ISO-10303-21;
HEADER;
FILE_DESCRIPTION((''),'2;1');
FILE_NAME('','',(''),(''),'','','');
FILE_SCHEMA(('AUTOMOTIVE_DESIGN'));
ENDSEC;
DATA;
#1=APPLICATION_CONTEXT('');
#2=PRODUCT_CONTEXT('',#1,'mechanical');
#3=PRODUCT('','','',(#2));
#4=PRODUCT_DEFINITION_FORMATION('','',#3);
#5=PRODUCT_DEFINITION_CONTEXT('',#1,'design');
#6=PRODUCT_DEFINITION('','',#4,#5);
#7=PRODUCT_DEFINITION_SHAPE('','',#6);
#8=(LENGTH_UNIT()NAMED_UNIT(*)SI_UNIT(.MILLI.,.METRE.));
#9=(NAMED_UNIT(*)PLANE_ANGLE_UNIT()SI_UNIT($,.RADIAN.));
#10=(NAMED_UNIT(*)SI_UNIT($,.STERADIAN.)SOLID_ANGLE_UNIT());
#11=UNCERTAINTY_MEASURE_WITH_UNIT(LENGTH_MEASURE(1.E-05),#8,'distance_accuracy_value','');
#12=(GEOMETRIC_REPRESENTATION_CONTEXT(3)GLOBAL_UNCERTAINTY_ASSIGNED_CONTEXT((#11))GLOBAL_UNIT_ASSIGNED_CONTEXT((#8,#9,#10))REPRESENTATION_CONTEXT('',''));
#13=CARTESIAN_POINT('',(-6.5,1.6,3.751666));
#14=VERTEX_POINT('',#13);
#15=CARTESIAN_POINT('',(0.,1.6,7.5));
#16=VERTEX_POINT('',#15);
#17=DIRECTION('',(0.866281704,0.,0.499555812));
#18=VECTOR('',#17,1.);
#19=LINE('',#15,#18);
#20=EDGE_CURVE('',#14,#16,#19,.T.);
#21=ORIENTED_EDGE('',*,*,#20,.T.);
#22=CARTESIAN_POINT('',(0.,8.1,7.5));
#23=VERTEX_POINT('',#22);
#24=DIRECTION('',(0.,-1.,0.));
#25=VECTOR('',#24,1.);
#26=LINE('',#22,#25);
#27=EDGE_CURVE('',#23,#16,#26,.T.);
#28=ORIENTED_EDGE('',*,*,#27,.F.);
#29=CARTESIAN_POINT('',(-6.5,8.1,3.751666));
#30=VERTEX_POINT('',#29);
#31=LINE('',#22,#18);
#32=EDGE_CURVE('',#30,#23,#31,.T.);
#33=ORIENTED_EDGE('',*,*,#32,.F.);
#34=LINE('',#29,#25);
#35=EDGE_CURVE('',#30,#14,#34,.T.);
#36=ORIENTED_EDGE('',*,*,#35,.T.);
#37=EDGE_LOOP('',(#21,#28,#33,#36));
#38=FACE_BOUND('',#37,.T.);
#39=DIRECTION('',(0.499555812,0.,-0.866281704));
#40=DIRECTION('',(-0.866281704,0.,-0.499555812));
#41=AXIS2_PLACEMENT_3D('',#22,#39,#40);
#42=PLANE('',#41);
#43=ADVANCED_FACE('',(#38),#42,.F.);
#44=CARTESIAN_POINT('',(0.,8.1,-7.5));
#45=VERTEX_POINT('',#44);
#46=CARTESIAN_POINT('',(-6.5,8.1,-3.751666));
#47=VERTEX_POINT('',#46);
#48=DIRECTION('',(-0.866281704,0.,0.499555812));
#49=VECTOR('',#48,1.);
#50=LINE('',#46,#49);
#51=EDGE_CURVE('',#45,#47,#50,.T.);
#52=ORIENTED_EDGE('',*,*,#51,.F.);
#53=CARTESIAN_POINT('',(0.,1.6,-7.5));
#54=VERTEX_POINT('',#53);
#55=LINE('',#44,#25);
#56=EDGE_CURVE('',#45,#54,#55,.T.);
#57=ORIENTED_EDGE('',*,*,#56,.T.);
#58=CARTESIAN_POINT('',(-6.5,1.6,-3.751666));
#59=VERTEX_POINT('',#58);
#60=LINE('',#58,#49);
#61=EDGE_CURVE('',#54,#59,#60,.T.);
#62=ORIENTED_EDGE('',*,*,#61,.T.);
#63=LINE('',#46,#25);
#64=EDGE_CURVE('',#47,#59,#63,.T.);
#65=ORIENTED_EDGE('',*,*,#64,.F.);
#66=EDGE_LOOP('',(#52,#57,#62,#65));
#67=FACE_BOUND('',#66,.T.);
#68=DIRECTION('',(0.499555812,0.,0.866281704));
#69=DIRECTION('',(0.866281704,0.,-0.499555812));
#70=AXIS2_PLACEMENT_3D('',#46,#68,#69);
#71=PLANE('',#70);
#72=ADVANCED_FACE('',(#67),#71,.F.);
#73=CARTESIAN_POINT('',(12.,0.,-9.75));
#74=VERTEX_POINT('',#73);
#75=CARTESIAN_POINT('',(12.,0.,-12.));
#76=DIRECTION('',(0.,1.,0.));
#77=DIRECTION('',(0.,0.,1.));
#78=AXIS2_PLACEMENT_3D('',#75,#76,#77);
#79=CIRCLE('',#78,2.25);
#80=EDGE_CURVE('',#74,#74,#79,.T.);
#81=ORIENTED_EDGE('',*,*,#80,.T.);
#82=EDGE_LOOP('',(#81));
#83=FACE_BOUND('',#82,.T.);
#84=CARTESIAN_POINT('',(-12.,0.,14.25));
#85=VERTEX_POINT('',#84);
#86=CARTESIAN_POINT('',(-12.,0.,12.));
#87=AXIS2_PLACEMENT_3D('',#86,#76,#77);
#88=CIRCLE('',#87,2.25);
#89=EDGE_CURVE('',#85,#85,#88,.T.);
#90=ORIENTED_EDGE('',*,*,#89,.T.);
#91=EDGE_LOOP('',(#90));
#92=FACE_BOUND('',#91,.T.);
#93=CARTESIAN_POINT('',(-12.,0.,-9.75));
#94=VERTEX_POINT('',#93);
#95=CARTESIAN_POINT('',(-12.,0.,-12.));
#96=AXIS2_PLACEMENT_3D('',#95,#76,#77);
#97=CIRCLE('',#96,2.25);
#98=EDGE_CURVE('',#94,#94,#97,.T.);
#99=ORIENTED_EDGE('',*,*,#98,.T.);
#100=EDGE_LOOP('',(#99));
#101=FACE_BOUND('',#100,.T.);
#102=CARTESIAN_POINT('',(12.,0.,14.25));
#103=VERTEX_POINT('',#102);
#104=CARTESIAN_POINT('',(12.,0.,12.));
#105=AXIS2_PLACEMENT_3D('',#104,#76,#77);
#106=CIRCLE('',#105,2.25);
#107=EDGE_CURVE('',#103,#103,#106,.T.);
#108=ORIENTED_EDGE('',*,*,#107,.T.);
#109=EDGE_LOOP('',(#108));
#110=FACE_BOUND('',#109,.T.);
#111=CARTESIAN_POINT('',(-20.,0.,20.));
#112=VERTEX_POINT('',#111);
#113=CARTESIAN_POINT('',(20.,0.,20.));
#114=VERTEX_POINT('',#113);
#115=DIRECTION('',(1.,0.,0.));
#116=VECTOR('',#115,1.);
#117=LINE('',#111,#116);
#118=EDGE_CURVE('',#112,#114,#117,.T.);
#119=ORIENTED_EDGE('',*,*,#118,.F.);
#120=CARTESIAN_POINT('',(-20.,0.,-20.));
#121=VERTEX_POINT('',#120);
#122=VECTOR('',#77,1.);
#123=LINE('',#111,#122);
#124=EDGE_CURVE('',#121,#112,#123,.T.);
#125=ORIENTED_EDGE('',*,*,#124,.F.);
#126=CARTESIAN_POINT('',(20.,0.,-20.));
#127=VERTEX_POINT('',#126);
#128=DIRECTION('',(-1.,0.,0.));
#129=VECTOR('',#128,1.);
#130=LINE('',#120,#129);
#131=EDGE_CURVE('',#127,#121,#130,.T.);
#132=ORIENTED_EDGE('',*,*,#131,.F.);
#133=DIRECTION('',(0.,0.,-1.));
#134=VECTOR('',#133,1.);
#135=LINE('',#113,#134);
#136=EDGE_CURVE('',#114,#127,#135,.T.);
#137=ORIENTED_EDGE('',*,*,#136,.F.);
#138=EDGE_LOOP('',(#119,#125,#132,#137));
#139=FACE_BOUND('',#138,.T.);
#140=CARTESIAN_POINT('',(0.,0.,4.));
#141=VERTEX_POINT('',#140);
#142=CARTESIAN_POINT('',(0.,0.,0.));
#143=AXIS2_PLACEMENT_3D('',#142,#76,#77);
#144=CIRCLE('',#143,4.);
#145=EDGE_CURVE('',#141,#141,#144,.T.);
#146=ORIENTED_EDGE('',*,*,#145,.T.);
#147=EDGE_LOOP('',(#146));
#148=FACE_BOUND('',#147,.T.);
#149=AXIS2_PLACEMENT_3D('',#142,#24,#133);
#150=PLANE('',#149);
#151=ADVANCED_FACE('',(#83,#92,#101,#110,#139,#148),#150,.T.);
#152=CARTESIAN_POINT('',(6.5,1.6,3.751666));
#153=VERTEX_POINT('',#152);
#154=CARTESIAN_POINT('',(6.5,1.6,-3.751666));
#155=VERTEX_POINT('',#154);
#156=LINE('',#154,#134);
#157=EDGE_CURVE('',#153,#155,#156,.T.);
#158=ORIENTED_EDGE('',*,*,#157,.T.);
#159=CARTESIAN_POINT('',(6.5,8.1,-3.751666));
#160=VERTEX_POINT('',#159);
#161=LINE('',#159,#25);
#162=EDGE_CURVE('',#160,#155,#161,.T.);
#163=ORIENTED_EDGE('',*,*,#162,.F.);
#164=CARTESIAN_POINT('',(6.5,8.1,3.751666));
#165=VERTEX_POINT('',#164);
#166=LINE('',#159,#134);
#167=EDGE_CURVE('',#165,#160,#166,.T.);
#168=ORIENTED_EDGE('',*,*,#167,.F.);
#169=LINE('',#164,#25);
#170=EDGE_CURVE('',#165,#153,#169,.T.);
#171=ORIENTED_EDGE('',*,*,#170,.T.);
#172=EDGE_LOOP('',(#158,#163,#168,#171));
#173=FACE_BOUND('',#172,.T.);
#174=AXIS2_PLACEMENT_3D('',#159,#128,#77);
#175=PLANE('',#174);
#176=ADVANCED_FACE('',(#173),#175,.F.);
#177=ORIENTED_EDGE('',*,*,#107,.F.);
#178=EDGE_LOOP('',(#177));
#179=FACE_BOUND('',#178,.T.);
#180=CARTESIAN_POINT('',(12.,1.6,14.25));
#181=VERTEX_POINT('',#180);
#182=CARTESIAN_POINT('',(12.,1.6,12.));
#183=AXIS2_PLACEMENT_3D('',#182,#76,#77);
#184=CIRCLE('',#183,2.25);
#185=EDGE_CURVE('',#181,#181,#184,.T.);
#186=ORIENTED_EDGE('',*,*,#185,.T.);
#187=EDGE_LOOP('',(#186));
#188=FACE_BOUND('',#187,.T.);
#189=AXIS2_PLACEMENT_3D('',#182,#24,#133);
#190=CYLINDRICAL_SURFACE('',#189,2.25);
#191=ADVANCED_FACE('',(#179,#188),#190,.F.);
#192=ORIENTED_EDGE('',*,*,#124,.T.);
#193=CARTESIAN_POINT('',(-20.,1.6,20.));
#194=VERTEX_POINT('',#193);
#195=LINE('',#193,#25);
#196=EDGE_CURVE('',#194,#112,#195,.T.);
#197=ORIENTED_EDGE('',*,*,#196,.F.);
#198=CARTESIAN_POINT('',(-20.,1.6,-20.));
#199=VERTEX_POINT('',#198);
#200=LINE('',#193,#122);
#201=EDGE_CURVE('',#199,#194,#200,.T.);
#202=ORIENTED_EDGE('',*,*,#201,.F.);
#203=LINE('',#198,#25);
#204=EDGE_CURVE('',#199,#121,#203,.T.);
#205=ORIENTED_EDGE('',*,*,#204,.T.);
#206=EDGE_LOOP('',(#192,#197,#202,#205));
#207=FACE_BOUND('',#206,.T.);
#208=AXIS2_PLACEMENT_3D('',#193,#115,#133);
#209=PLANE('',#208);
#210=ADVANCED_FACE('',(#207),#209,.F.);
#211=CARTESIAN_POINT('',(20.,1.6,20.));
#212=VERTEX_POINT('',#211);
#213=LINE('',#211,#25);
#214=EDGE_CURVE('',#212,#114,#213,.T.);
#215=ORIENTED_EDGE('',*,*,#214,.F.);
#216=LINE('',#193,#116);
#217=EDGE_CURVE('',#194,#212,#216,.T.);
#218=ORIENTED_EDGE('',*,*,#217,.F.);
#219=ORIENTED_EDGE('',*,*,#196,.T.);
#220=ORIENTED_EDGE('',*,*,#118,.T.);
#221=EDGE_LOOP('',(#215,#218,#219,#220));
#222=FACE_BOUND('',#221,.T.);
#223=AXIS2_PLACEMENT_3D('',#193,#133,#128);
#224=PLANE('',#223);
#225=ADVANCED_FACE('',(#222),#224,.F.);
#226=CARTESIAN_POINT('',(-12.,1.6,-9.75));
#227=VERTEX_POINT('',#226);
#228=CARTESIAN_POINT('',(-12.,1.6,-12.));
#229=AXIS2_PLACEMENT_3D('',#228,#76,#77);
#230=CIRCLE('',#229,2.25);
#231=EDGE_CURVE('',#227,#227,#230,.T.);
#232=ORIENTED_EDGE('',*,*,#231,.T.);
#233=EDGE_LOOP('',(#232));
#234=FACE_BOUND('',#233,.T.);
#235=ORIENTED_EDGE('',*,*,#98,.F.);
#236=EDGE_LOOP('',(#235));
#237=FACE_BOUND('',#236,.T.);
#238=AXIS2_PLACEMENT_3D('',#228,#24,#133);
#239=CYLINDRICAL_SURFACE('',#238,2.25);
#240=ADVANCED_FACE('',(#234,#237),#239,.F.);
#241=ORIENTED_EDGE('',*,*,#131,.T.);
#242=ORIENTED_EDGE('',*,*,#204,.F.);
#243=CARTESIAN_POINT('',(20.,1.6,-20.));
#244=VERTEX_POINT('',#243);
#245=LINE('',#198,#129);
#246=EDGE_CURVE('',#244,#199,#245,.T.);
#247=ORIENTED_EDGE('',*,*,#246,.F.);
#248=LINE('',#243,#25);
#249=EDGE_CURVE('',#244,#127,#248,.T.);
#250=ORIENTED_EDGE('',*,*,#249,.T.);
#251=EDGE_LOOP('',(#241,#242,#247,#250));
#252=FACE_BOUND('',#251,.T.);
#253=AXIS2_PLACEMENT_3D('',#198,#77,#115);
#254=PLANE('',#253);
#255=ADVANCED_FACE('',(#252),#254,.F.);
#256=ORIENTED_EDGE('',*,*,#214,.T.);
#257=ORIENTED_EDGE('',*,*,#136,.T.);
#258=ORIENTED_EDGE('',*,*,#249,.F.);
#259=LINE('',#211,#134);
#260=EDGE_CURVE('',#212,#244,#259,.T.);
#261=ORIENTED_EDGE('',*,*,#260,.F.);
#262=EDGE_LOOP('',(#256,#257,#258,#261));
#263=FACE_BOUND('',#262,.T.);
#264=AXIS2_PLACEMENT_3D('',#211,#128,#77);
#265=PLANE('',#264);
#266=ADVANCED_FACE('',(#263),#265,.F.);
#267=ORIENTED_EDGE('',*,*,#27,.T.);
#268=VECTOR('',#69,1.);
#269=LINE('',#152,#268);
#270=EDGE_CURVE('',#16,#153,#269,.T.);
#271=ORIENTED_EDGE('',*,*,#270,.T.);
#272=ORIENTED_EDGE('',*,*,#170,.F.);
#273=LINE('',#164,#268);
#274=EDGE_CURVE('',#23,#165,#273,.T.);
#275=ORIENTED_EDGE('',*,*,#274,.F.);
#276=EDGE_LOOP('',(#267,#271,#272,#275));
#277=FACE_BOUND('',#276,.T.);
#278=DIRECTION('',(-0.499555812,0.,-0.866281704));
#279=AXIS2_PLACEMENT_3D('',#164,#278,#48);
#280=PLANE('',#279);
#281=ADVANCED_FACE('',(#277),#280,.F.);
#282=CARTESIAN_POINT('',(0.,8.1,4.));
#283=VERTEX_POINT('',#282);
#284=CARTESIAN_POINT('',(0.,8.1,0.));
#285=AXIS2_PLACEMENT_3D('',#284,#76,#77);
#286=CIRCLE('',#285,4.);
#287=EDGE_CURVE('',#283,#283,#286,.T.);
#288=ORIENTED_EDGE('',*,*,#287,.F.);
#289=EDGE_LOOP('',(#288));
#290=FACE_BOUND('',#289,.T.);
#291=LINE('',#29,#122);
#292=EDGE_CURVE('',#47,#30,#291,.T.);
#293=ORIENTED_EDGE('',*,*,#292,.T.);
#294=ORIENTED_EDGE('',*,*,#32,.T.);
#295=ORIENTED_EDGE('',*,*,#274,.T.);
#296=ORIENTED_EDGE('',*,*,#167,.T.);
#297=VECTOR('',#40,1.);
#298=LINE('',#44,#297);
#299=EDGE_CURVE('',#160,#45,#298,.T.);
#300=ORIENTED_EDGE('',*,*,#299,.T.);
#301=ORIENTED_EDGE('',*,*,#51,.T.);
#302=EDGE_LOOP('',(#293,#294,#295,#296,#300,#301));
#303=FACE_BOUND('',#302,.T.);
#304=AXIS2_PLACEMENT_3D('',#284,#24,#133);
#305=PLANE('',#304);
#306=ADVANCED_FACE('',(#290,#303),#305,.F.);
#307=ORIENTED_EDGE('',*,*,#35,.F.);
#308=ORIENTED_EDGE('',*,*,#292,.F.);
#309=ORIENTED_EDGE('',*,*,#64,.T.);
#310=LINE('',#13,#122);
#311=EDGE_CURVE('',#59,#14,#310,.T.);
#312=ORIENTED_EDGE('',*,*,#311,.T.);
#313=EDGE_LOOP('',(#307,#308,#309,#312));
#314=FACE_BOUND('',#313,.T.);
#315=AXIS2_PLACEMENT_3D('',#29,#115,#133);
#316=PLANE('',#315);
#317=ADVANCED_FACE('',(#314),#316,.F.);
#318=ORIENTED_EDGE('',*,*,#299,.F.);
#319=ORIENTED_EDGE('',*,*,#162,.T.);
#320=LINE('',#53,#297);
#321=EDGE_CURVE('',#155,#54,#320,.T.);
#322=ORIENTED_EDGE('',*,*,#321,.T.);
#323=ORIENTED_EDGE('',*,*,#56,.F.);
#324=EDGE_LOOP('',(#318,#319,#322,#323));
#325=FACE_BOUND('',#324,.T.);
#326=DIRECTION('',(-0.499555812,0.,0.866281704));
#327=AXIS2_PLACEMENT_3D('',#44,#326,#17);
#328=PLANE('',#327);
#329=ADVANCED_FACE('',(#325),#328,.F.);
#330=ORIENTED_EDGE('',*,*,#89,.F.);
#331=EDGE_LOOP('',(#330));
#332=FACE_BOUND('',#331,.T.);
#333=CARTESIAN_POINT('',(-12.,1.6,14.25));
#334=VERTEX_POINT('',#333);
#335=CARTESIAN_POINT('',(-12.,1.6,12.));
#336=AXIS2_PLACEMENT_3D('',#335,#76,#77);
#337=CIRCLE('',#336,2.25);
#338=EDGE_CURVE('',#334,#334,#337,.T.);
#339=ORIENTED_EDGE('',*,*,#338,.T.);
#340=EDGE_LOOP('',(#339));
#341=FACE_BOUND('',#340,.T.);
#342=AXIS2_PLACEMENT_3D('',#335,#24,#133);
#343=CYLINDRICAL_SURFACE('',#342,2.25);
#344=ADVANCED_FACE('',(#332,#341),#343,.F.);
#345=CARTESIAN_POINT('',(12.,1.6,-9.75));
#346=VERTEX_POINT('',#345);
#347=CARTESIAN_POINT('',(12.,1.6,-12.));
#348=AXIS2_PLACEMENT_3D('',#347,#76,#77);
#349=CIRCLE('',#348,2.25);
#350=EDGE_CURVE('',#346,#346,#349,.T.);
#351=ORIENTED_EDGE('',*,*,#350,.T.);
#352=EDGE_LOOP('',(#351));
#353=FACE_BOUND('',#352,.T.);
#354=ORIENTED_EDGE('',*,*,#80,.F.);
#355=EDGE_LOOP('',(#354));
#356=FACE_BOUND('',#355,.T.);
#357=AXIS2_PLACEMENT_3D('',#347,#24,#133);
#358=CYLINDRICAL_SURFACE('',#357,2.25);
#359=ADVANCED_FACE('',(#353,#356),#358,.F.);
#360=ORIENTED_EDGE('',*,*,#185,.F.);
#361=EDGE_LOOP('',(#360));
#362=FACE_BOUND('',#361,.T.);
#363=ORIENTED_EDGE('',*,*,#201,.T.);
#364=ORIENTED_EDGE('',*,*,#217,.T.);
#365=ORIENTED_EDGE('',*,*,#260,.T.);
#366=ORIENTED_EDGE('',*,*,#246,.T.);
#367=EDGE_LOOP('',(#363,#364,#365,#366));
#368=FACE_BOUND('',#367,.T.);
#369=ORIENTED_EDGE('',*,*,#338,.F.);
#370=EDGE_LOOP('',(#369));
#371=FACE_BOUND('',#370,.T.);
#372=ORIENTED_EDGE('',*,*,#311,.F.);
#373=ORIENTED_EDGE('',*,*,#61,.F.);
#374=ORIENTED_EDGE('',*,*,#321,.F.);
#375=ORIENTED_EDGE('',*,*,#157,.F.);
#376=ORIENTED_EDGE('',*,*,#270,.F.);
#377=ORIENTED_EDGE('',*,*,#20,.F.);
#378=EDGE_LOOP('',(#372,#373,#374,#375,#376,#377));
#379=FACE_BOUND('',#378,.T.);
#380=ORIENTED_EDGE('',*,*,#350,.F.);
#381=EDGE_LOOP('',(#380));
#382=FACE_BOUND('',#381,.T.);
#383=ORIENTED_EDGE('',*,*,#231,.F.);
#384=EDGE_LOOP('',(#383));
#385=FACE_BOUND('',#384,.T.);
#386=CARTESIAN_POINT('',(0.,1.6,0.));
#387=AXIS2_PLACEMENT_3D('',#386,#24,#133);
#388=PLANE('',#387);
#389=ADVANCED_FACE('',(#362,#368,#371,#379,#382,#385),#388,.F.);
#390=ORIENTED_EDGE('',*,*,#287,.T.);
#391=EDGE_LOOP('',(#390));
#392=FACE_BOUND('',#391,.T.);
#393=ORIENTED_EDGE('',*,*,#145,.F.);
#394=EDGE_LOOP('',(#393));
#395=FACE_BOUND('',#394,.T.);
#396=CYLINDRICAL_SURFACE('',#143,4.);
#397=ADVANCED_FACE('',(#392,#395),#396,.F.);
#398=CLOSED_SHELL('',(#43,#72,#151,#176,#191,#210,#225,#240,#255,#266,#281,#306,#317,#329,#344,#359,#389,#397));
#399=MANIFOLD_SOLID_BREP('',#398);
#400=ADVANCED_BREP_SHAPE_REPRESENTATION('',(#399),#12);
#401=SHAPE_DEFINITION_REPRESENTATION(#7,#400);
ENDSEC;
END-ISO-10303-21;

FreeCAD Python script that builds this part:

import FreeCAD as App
import Part
import Sketcher
from FreeCAD import Vector
Q = App.Units.Quantity

doc = App.newDocument("Part")
body = doc.addObject("PartDesign::Body", "Body")

# Sketch on XZ plane
sketch1 = doc.addObject("Sketcher::SketchObject", "Sketch")
body.addObject(sketch1)
sketch1.AttachmentSupport = (doc.XZ_Plane, [""])
sketch1.MapMode = "FlatFace"
sketch1.addGeometry([
    Part.LineSegment(Vector(-20, -20, 0), Vector(-20, 20, 0)),  # 0
    Part.LineSegment(Vector(-20, 20, 0), Vector(20, 20, 0)),  # 1
    Part.LineSegment(Vector(20, 20, 0), Vector(20, -20, 0)),  # 2
    Part.LineSegment(Vector(20, -20, 0), Vector(-20, -20, 0)),  # 3
    Part.Circle(Vector(-12, 12, 0), Vector(0, 0, 1), 2.2),  # 4
    Part.Circle(Vector(12, 12, 0), Vector(0, 0, 1), 2.2),  # 5
    Part.Circle(Vector(-12, -12, 0), Vector(0, 0, 1), 2.2),  # 6
    Part.Circle(Vector(12, -12, 0), Vector(0, 0, 1), 2.2),  # 7
], False)
sketch1.addConstraint([
    Sketcher.Constraint("Coincident", 0, 2, 1, 1),
    Sketcher.Constraint("Coincident", 1, 2, 2, 1),
    Sketcher.Constraint("Coincident", 2, 2, 3, 1),
    Sketcher.Constraint("Coincident", 3, 2, 0, 1),
    Sketcher.Constraint("Vertical", 0),
    Sketcher.Constraint("Horizontal", 1),
    Sketcher.Constraint("Vertical", 2),
    Sketcher.Constraint("Horizontal", 3),
    Sketcher.Constraint("Equal", 4, 5),
    Sketcher.Constraint("Equal", 5, 6),
    Sketcher.Constraint("Equal", 6, 7),
    Sketcher.Constraint("Symmetric", 5, 3, 6, 3, -1, 1),
    Sketcher.Constraint("Symmetric", 4, 3, 7, 3, -1, 1),
    Sketcher.Constraint("Symmetric", 0, 2, 2, 2, -1, 1),
    Sketcher.Constraint("Symmetric", 4, 3, 5, 3, -2),
    Sketcher.Constraint("Equal", 3, 0),
    Sketcher.Constraint("Diameter", 4, Q("4.5 mm")),
    Sketcher.Constraint("DistanceX", 1, 1, 1, 2, Q("40 mm")),
    Sketcher.Constraint("DistanceX", 4, 3, -1, 1, Q("12 mm")),
    Sketcher.Constraint("DistanceY", -1, 1, 4, 3, Q("12 mm")),
])
pad1 = doc.addObject("PartDesign::Pad", "Pad")
body.addObject(pad1)
pad1.Profile = sketch1
pad1.Length = 1.6
pad1.Reversed = True

# Sketch on XZ plane
sketch2 = doc.addObject("Sketcher::SketchObject", "Sketch001")
body.addObject(sketch2)
sketch2.AttachmentSupport = (doc.XZ_Plane, [""])
sketch2.MapMode = "FlatFace"
sketch2.AttachmentOffset = App.Placement(Vector(0, 0, -1.6), App.Rotation())
sketch2.addGeometry([
    Part.LineSegment(Vector(6, -4, 0), Vector(0, -8, 0)),  # 0
    Part.LineSegment(Vector(0, -8, 0), Vector(-6, -4, 0)),  # 1
    Part.LineSegment(Vector(-6, -4, 0), Vector(-6, 4, 0)),  # 2
    Part.LineSegment(Vector(-6, 4, 0), Vector(0, 8, 0)),  # 3
    Part.LineSegment(Vector(0, 8, 0), Vector(6, 4, 0)),  # 4
    Part.LineSegment(Vector(6, 4, 0), Vector(6, -4, 0)),  # 5
], False)
sketch2.addConstraint([
    Sketcher.Constraint("Coincident", 0, 2, 1, 1),
    Sketcher.Constraint("Coincident", 1, 2, 2, 1),
    Sketcher.Constraint("Coincident", 2, 2, 3, 1),
    Sketcher.Constraint("Coincident", 3, 2, 4, 1),
    Sketcher.Constraint("Coincident", 4, 2, 5, 1),
    Sketcher.Constraint("Coincident", 5, 2, 0, 1),
    Sketcher.Constraint("Vertical", 2),
    Sketcher.Constraint("Vertical", 5),
    Sketcher.Constraint("Symmetric", 0, 2, 3, 2, -1, 1),
    Sketcher.Constraint("Symmetric", 1, 2, 4, 2, -1, 1),
    Sketcher.Constraint("PointOnObject", 0, 2, -2),
    Sketcher.Constraint("Parallel", 0, 3),
    Sketcher.Constraint("Horizontal", 2, 2, 4, 2),
    Sketcher.Constraint("DistanceY", 0, 2, 3, 2, Q("15 mm")),
    Sketcher.Constraint("DistanceX", 2, 2, 4, 2, Q("13 mm")),
    Sketcher.Constraint("DistanceY", 2, 1, 2, 2, Q("7.503333 mm")),
])
pad2 = doc.addObject("PartDesign::Pad", "Pad001")
body.addObject(pad2)
pad2.Profile = sketch2
pad2.Length = 6.5
pad2.Reversed = True

# Sketch on XZ plane
sketch3 = doc.addObject("Sketcher::SketchObject", "Sketch002")
body.addObject(sketch3)
sketch3.AttachmentSupport = (doc.XZ_Plane, [""])
sketch3.MapMode = "FlatFace"
sketch3.AttachmentOffset = App.Placement(Vector(0, 0, -8.1), App.Rotation())
sketch3.addGeometry(Part.Circle(Vector(0, 0, 0), Vector(0, 0, 1), 4), False)
sketch3.addConstraint([
    Sketcher.Constraint("Coincident", 0, 3, -1, 1),
    Sketcher.Constraint("Diameter", 0, Q("8 mm")),
])
pocket1 = doc.addObject("PartDesign::Pocket", "Pocket")
body.addObject(pocket1)
pocket1.Profile = sketch3
pocket1.Type = "ThroughAll"
pocket1.Reversed = True

doc.recompute()
